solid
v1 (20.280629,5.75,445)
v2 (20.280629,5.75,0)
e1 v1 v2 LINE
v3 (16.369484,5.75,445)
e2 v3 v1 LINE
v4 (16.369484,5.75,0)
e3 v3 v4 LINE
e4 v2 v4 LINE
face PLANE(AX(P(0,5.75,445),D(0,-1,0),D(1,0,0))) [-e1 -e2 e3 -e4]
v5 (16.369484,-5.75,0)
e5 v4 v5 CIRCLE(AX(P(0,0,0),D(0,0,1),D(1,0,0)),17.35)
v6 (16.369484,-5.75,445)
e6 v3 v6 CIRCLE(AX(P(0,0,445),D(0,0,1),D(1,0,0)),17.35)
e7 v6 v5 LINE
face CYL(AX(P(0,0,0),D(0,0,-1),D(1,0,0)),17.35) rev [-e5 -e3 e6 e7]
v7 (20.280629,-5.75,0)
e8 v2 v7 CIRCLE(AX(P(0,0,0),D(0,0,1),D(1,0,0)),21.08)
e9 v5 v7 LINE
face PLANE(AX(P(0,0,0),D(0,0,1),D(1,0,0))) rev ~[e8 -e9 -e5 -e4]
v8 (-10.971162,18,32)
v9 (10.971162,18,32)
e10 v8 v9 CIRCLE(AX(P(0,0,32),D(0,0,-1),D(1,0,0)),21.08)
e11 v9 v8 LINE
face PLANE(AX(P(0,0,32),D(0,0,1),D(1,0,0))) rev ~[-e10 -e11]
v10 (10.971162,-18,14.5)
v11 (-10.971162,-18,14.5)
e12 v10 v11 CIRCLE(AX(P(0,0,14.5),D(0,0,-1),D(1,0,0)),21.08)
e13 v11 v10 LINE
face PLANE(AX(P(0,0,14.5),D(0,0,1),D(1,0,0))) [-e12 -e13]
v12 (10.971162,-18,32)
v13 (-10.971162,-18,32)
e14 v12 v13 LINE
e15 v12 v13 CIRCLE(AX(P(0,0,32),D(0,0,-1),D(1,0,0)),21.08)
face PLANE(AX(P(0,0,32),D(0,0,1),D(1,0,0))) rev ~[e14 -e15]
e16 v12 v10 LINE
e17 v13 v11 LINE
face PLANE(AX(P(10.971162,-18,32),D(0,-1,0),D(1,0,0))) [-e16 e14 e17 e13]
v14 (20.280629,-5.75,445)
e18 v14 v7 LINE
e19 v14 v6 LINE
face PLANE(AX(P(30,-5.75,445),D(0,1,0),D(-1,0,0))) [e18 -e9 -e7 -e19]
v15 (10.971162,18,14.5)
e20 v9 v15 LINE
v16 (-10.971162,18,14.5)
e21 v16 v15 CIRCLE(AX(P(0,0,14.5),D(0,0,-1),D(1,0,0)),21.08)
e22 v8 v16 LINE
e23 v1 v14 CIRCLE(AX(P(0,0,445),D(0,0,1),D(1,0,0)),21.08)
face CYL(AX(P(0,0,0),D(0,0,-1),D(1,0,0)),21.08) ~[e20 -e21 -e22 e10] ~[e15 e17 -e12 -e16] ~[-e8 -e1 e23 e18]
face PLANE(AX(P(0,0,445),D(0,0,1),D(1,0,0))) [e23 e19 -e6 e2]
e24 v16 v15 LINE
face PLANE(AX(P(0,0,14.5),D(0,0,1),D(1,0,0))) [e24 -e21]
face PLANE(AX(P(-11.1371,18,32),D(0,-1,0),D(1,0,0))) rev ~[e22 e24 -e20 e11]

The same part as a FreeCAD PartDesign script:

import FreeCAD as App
import Part
import Sketcher

V = App.Vector


def add_polygon(sketch, points):
    """Adds a closed chain of lines whose ends are joined by coincident constraints."""
    first, n = sketch.GeometryCount, len(points)
    for a, b in zip(points, points[1:] + points[:1]):
        sketch.addGeometry(Part.LineSegment(App.Vector(*a, 0), App.Vector(*b, 0)), False)
    for i in range(n):
        sketch.addConstraint(Sketcher.Constraint("Coincident", first + i, 2, first + (i + 1) % n, 1))

doc = App.newDocument("Part")
body = doc.addObject("PartDesign::Body", "Body")

# Sketch on XY plane
sketch1 = body.newObject("Sketcher::SketchObject", "Sketch")
sketch1.AttachmentSupport = (doc.getObject("XY_Plane"), [""])
sketch1.MapMode = "FlatFace"
sketch1.addGeometry([
    Part.Circle(V(0, 0, 0), V(0, 0, 1), 21),
    Part.Circle(V(0, 0, 0), V(0, 0, 1), 17),
], False)
sketch1.addConstraint([
    Sketcher.Constraint("Coincident", 0, 3, -1, 1),
    Sketcher.Constraint("Coincident", 1, 3, -1, 1),
    Sketcher.Constraint("Diameter", 0, 42.16),
    Sketcher.Constraint("Diameter", 1, 34.7),
])
pad1 = body.newObject("PartDesign::Pad", "Pad")
pad1.Profile = sketch1
pad1.Length = 445

# Sketch on XY plane
sketch2 = body.newObject("Sketcher::SketchObject", "Sketch001")
sketch2.AttachmentSupport = (doc.getObject("XY_Plane"), [""])
sketch2.MapMode = "FlatFace"
sketch2.AttachmentOffset = App.Placement(V(0, 0, 32), App.Rotation())
add_polygon(sketch2, [(-11.1, -22.2), (11.1, -22.2), (11.1, -18), (-11.1, -18)])  # lines 0-3
add_polygon(sketch2, [(-11.1, 18), (11.1, 18), (11.1, 22.2), (-11.1, 22.2)])  # lines 4-7
sketch2.addConstraint([
    Sketcher.Constraint("Horizontal", 0),
    Sketcher.Constraint("Vertical", 1),
    Sketcher.Constraint("Horizontal", 2),
    Sketcher.Constraint("Vertical", 3),
    Sketcher.Constraint("Horizontal", 4),
    Sketcher.Constraint("Vertical", 5),
    Sketcher.Constraint("Horizontal", 6),
    Sketcher.Constraint("Vertical", 7),
    Sketcher.Constraint("Symmetric", 2, 2, 4, 2, -1, 1),
    Sketcher.Constraint("Symmetric", 0, 2, 6, 2, -1, 1),
    Sketcher.Constraint("Vertical", 1, 2, 4, 2),
    Sketcher.Constraint("DistanceY", 1, 2, -1, 1, 18.0),
    Sketcher.Constraint("DistanceY", 1, 1, 1, 2, 4.214),
    Sketcher.Constraint("DistanceX", 0, 1, 0, 2, 22.2742),
])
pocket1 = body.newObject("PartDesign::Pocket", "Pocket")
pocket1.Profile = sketch2
pocket1.Length = 17.5

# Sketch on XY plane
sketch3 = body.newObject("Sketcher::SketchObject", "Sketch002")
sketch3.AttachmentSupport = (doc.getObject("XY_Plane"), [""])
sketch3.MapMode = "FlatFace"
sketch3.AttachmentOffset = App.Placement(V(0, 0, 445), App.Rotation())
add_polygon(sketch3, [(0, -6), (30, -6), (30, 6), (0, 6)])  # lines 0-3
sketch3.addConstraint([
    Sketcher.Constraint("Horizontal", 0),
    Sketcher.Constraint("Vertical", 1),
    Sketcher.Constraint("Horizontal", 2),
    Sketcher.Constraint("Vertical", 3),
    Sketcher.Constraint("Symmetric", 2, 2, 3, 2, -1, 1),
    Sketcher.Constraint("DistanceX", 0, 1, 0, 2, 30.0),
    Sketcher.Constraint("DistanceY", 1, 1, 1, 2, 11.5),
])
pocket2 = body.newObject("PartDesign::Pocket", "Pocket001")
pocket2.Profile = sketch3
pocket2.Length = 445

doc.recompute()
